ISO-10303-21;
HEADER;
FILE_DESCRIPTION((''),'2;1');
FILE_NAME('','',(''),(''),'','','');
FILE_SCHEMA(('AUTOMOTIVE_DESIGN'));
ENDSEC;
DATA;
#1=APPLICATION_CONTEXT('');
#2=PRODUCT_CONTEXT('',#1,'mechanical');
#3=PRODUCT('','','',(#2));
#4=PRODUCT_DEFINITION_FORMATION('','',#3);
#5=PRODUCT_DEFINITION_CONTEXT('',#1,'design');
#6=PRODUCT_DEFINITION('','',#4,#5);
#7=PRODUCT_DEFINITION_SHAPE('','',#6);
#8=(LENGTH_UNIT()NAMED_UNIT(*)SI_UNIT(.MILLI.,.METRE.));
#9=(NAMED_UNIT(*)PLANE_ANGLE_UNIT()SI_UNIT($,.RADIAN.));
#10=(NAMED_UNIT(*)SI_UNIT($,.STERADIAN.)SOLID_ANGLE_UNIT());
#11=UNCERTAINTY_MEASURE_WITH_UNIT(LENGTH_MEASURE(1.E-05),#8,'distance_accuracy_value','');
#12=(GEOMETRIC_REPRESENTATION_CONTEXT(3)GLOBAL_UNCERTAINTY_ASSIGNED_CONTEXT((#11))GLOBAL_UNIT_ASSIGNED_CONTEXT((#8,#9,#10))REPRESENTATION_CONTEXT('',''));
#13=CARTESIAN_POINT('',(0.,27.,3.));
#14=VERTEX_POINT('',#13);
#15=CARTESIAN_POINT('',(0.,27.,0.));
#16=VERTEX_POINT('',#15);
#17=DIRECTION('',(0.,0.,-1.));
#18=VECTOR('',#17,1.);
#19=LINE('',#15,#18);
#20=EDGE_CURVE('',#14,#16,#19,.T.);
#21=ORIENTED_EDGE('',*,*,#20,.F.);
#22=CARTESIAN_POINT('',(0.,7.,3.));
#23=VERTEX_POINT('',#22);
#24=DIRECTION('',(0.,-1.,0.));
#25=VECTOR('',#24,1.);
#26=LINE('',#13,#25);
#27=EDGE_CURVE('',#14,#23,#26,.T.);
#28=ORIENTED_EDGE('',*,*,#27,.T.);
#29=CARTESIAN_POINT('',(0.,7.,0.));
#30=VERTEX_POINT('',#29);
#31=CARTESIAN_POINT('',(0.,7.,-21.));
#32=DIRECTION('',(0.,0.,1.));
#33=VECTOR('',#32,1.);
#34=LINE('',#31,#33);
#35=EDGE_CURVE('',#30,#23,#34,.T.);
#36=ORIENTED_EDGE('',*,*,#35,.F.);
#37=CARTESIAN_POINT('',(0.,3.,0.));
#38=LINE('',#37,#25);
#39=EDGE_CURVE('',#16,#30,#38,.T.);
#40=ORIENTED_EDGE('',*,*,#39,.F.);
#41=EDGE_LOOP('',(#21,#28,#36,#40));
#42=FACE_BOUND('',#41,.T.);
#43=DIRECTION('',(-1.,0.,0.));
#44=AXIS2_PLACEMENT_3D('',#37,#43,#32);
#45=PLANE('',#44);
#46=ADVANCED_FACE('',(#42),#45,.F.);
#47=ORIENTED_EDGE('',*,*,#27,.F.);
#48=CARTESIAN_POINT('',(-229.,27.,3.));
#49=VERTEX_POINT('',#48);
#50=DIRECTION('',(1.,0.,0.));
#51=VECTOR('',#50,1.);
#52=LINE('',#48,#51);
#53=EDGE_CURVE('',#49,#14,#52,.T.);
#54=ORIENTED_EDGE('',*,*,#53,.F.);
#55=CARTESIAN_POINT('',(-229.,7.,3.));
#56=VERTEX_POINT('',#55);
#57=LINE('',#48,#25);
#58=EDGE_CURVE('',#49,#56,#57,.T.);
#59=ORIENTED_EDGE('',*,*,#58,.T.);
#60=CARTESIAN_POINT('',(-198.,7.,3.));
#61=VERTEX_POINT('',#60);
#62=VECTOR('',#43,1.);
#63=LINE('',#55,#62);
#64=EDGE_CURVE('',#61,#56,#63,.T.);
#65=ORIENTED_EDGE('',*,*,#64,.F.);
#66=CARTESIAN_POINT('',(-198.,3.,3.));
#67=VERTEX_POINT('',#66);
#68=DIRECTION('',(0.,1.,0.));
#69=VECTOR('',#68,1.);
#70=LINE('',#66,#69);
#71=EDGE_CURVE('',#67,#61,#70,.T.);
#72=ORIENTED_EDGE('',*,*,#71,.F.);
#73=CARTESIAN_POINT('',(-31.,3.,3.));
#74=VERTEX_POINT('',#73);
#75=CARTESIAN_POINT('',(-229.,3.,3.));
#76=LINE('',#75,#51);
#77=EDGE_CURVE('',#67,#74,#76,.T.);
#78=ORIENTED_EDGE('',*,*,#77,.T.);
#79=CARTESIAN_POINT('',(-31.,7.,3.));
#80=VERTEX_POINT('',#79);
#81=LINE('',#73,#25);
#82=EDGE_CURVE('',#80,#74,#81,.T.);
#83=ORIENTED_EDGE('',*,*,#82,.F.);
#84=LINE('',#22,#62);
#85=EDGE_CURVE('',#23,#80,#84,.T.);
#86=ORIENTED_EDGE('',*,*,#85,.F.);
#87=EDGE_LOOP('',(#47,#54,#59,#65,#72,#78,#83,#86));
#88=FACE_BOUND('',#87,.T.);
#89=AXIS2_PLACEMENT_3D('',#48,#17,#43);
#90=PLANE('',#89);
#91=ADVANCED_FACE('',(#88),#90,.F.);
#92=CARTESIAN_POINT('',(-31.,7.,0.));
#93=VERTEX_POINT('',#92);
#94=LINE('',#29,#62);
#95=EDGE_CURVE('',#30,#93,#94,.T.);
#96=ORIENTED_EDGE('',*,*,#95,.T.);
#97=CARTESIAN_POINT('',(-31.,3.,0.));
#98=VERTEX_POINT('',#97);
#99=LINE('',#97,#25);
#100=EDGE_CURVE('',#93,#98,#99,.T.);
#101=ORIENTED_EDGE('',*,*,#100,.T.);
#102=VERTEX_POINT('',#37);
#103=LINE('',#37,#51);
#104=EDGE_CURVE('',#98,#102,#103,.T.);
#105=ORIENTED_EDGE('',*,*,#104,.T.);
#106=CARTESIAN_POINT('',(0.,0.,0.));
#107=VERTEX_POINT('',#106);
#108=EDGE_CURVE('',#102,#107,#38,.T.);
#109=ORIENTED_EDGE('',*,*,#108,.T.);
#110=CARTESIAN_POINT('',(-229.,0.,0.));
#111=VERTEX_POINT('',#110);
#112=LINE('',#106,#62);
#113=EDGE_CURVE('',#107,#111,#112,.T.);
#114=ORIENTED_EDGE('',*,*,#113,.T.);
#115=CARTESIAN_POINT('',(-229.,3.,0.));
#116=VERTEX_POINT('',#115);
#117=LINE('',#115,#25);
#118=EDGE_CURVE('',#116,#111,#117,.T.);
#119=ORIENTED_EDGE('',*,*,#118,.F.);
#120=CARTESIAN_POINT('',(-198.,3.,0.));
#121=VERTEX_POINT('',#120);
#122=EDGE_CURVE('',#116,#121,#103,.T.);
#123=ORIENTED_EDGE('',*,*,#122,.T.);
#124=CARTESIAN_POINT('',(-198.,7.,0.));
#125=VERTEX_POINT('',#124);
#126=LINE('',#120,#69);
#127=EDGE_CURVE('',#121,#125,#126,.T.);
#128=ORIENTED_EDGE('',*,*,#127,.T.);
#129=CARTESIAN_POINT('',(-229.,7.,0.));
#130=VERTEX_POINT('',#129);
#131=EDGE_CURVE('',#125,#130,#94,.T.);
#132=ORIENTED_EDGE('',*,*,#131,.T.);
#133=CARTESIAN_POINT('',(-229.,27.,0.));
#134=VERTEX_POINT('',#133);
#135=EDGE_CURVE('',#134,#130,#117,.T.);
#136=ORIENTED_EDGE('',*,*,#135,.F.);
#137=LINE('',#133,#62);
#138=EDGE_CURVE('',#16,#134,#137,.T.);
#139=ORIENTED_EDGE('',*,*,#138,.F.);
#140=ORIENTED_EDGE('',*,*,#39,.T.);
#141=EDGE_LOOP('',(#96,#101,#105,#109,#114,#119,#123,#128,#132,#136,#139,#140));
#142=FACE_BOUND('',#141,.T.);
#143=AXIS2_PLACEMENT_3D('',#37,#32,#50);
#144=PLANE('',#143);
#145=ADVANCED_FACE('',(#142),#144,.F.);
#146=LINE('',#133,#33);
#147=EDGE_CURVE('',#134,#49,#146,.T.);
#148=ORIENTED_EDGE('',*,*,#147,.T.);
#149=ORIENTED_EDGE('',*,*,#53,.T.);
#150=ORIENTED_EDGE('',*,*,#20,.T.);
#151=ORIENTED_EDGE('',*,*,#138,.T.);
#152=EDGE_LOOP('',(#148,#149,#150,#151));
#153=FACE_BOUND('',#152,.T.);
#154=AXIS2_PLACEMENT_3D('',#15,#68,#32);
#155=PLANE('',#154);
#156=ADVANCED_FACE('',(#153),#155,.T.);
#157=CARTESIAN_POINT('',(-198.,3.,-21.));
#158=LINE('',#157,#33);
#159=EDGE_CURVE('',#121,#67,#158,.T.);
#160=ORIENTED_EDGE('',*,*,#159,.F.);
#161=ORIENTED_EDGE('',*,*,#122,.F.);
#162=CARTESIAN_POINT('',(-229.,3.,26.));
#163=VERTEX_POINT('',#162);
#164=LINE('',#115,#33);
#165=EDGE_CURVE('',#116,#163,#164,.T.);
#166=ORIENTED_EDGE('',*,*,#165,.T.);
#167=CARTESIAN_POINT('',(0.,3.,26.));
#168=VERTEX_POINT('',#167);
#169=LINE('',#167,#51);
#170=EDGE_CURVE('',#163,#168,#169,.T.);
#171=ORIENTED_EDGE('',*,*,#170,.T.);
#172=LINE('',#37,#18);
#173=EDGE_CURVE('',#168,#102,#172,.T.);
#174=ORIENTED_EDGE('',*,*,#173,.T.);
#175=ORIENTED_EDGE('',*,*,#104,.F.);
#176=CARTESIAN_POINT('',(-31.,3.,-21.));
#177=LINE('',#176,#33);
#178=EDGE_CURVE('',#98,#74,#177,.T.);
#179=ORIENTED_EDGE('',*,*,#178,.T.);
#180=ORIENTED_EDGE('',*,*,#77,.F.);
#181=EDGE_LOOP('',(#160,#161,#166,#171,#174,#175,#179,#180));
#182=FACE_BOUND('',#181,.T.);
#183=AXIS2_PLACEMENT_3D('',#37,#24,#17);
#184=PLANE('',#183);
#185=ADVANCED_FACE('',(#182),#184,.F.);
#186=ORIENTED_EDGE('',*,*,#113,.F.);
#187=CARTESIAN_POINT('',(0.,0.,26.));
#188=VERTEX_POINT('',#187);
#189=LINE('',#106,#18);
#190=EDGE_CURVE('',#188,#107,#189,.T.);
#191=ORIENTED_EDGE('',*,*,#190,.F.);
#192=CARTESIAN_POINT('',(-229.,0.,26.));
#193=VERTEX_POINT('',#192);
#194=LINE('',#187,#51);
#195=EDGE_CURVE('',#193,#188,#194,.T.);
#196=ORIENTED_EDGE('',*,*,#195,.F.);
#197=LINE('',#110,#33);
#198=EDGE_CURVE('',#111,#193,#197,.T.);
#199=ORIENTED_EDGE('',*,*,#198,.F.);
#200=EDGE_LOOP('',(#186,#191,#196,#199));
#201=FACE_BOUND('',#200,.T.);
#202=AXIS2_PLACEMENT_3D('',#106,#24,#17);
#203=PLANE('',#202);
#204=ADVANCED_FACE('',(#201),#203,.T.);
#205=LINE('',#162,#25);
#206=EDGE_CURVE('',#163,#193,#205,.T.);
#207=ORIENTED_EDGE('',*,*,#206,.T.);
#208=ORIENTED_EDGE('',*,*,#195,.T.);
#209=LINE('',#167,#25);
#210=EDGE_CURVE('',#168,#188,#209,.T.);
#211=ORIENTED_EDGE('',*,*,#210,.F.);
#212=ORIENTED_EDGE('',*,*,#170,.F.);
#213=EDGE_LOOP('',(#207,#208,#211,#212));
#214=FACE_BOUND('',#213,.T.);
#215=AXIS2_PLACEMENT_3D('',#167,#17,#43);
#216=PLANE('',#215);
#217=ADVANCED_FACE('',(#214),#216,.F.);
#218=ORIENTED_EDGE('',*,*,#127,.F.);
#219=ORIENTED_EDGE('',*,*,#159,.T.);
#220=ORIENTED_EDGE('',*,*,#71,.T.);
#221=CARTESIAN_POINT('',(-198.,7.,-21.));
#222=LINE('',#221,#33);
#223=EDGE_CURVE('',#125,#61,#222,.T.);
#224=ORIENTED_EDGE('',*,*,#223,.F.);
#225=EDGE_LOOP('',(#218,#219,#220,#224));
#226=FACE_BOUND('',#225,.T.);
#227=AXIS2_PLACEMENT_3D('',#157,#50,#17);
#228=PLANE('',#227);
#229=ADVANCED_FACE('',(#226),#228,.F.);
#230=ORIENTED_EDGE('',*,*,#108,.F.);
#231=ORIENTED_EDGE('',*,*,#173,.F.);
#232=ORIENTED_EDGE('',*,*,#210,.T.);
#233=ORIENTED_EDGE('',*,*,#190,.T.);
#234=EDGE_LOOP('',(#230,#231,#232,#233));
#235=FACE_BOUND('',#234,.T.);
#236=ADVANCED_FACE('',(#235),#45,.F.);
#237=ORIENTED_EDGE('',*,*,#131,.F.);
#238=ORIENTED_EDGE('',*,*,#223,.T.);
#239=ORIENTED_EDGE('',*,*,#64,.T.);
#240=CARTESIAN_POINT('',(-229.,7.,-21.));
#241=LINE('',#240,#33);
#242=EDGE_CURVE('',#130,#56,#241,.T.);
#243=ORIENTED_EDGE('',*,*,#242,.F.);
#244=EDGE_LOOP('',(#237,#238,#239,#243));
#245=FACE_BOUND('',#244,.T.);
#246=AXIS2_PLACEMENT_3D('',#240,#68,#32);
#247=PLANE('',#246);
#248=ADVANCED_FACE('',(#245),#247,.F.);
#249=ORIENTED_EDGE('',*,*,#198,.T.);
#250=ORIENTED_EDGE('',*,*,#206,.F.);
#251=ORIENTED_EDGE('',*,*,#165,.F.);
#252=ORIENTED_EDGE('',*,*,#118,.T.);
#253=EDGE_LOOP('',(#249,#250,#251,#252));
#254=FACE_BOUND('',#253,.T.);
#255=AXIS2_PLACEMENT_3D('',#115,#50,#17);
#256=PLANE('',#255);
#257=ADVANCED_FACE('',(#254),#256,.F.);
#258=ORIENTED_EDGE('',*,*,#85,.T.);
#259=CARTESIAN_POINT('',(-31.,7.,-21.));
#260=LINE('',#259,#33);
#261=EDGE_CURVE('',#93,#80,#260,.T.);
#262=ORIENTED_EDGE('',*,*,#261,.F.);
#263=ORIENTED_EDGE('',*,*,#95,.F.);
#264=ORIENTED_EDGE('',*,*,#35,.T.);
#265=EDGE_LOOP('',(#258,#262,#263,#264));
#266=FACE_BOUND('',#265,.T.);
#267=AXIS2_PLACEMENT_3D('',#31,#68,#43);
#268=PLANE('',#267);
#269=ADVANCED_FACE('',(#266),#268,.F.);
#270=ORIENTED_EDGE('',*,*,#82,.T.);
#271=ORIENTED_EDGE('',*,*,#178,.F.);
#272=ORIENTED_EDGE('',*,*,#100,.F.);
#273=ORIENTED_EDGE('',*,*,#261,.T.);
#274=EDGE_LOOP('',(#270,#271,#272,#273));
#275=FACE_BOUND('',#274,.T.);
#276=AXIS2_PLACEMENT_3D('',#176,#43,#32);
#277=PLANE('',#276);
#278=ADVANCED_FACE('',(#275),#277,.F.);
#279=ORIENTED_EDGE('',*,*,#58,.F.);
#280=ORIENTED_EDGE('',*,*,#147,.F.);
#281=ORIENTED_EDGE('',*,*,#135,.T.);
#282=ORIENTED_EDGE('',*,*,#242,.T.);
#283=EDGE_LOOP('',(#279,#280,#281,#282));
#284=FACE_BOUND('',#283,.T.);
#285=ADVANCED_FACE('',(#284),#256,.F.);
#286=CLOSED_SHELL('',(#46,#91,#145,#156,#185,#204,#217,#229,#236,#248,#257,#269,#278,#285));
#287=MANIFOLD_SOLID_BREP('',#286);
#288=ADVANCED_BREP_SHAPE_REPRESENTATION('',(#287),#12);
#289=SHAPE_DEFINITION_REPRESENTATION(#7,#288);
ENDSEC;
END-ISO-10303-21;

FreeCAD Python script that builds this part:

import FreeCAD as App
import Part
import Sketcher

V = App.Vector

doc = App.newDocument("Part")
body = doc.addObject("PartDesign::Body", "Body")

sketch1 = body.newObject("Sketcher::SketchObject", "Sketch")
sketch1.AttachmentSupport = (doc.getObject("XZ_Plane"), [""])
sketch1.MapMode = "FlatFace"
sketch1.addGeometry(Part.LineSegment(V(-229, 0, 0), V(-229, 26, 0)), False)
sketch1.addGeometry(Part.LineSegment(V(-229, 26, 0), V(0, 26, 0)), False)
sketch1.addGeometry(Part.LineSegment(V(0, 26, 0), V(0, 0, 0)), False)
sketch1.addGeometry(Part.LineSegment(V(0, 0, 0), V(-229, 0, 0)), False)
sketch1.addConstraint(Sketcher.Constraint("Coincident", 0, 2, 1, 1))
sketch1.addConstraint(Sketcher.Constraint("Coincident", 1, 2, 2, 1))
sketch1.addConstraint(Sketcher.Constraint("Coincident", 2, 2, 3, 1))
sketch1.addConstraint(Sketcher.Constraint("Coincident", 3, 2, 0, 1))
sketch1.addConstraint(Sketcher.Constraint("Vertical", 0))
sketch1.addConstraint(Sketcher.Constraint("Horizontal", 1))
sketch1.addConstraint(Sketcher.Constraint("Vertical", 2))
sketch1.addConstraint(Sketcher.Constraint("Horizontal", 3))
sketch1.addConstraint(Sketcher.Constraint("Coincident", 2, 2, -1, 1))
sketch1.addConstraint(Sketcher.Constraint("DistanceX", 1, 1, 1, 2, 229.0))
sketch1.addConstraint(Sketcher.Constraint("DistanceY", 0, 1, 0, 2, 26.0))
pad1 = body.newObject("PartDesign::Pad", "Pad")
pad1.Profile = sketch1
pad1.Length = 3
pad1.Reversed = True

sketch2 = body.newObject("Sketcher::SketchObject", "Sketch001")
sketch2.AttachmentSupport = (doc.getObject("XZ_Plane"), [""])
sketch2.MapMode = "FlatFace"
sketch2.AttachmentOffset = App.Placement(V(0, 0, -3), App.Rotation())
sketch2.addGeometry(Part.LineSegment(V(-229, 0, 0), V(-229, 3, 0)), False)
sketch2.addGeometry(Part.LineSegment(V(-229, 3, 0), V(0, 3, 0)), False)
sketch2.addGeometry(Part.LineSegment(V(0, 3, 0), V(0, 0, 0)), False)
sketch2.addGeometry(Part.LineSegment(V(0, 0, 0), V(-229, 0, 0)), False)
sketch2.addConstraint(Sketcher.Constraint("Coincident", 0, 2, 1, 1))
sketch2.addConstraint(Sketcher.Constraint("Coincident", 1, 2, 2, 1))
sketch2.addConstraint(Sketcher.Constraint("Coincident", 2, 2, 3, 1))
sketch2.addConstraint(Sketcher.Constraint("Coincident", 3, 2, 0, 1))
sketch2.addConstraint(Sketcher.Constraint("Vertical", 0))
sketch2.addConstraint(Sketcher.Constraint("Horizontal", 1))
sketch2.addConstraint(Sketcher.Constraint("Vertical", 2))
sketch2.addConstraint(Sketcher.Constraint("Horizontal", 3))
sketch2.addConstraint(Sketcher.Constraint("Coincident", 2, 2, -1, 1))
sketch2.addConstraint(Sketcher.Constraint("DistanceX", 1, 1, 1, 2, 229.0))
sketch2.addConstraint(Sketcher.Constraint("DistanceY", 0, 1, 0, 2, 3.0))
pad2 = body.newObject("PartDesign::Pad", "Pad001")
pad2.Profile = sketch2
pad2.Length = 24
pad2.Reversed = True

sketch3 = body.newObject("Sketcher::SketchObject", "Sketch002")
sketch3.AttachmentSupport = (doc.getObject("XY_Plane"), [""])
sketch3.MapMode = "FlatFace"
sketch3.AttachmentOffset = App.Placement(V(0, 0, 3), App.Rotation())
sketch3.addGeometry(Part.LineSegment(V(-229, 7, 0), V(-229, 3, 0)), False)
sketch3.addGeometry(Part.LineSegment(V(-229, 3, 0), V(-198, 3, 0)), False)
sketch3.addGeometry(Part.LineSegment(V(-198, 3, 0), V(-198, 7, 0)), False)
sketch3.addGeometry(Part.LineSegment(V(-198, 7, 0), V(-229, 7, 0)), False)
sketch3.addGeometry(Part.LineSegment(V(-31, 7, 0), V(-31, 3, 0)), False)
sketch3.addGeometry(Part.LineSegment(V(-31, 3, 0), V(0, 3, 0)), False)
sketch3.addGeometry(Part.LineSegment(V(0, 3, 0), V(0, 7, 0)), False)
sketch3.addGeometry(Part.LineSegment(V(0, 7, 0), V(-31, 7, 0)), False)
sketch3.addConstraint(Sketcher.Constraint("Coincident", 0, 2, 1, 1))
sketch3.addConstraint(Sketcher.Constraint("Coincident", 1, 2, 2, 1))
sketch3.addConstraint(Sketcher.Constraint("Coincident", 2, 2, 3, 1))
sketch3.addConstraint(Sketcher.Constraint("Coincident", 3, 2, 0, 1))
sketch3.addConstraint(Sketcher.Constraint("Coincident", 4, 2, 5, 1))
sketch3.addConstraint(Sketcher.Constraint("Coincident", 5, 2, 6, 1))
sketch3.addConstraint(Sketcher.Constraint("Coincident", 6, 2, 7, 1))
sketch3.addConstraint(Sketcher.Constraint("Coincident", 7, 2, 4, 1))
sketch3.addConstraint(Sketcher.Constraint("Vertical", 0))
sketch3.addConstraint(Sketcher.Constraint("Horizontal", 1))
sketch3.addConstraint(Sketcher.Constraint("Vertical", 2))
sketch3.addConstraint(Sketcher.Constraint("Horizontal", 3))
sketch3.addConstraint(Sketcher.Constraint("Vertical", 4))
sketch3.addConstraint(Sketcher.Constraint("Horizontal", 5))
sketch3.addConstraint(Sketcher.Constraint("Vertical", 6))
sketch3.addConstraint(Sketcher.Constraint("Horizontal", 7))
sketch3.addConstraint(Sketcher.Constraint("PointOnObject", 5, 2, -2))
sketch3.addConstraint(Sketcher.Constraint("Horizontal", 1, 2, 4, 2))
sketch3.addConstraint(Sketcher.Constraint("Horizontal", 3, 2, 6, 2))
sketch3.addConstraint(Sketcher.Constraint("Equal", 3, 5))
sketch3.addConstraint(Sketcher.Constraint("DistanceX", 1, 1, 1, 2, 31.0))
sketch3.addConstraint(Sketcher.Constraint("DistanceY", 0, 2, 0, 1, 4.0))
sketch3.addConstraint(Sketcher.Constraint("DistanceX", 0, 2, -1, 1, 229.0))
sketch3.addConstraint(Sketcher.Constraint("DistanceY", -1, 1, 0, 2, 3.0))
pocket1 = body.newObject("PartDesign::Pocket", "Pocket")
pocket1.Profile = sketch3
pocket1.Length = 24

doc.recompute()
